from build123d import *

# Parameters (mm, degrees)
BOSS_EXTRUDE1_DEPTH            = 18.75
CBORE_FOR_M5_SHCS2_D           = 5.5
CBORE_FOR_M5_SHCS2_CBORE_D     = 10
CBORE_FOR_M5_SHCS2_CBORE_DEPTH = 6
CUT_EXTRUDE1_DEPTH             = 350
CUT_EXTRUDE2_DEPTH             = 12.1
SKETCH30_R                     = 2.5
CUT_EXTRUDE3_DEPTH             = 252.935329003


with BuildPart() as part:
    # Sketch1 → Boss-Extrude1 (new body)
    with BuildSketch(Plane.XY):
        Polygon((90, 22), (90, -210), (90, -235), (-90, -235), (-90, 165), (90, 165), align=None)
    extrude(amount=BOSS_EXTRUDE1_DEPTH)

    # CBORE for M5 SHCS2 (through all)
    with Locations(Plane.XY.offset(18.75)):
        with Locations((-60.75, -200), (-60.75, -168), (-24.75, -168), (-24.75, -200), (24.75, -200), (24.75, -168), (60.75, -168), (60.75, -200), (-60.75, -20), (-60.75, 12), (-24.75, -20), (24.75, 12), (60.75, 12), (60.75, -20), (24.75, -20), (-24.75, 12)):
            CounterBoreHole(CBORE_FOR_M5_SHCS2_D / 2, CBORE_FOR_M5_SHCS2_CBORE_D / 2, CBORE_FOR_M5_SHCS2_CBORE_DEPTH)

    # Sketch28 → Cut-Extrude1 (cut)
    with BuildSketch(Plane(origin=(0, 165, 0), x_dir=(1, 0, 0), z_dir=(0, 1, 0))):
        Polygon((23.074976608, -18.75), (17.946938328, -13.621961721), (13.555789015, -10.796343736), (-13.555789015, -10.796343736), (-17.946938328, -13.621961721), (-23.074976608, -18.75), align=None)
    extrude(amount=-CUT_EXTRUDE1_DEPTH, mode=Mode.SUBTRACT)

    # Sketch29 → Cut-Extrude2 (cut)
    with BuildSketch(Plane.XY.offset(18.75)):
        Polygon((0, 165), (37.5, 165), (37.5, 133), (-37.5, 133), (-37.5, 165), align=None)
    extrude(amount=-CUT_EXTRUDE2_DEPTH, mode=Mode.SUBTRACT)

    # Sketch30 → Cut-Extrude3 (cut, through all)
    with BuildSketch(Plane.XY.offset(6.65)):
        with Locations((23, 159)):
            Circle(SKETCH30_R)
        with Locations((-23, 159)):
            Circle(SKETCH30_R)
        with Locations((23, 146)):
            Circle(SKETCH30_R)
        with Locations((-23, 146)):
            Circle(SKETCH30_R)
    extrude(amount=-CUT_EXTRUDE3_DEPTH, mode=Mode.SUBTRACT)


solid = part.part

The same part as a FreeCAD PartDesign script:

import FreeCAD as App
import Part
import Sketcher

V = App.Vector


def add_polygon(sketch, points):
    """Adds a closed chain of lines whose ends are joined by coincident constraints."""
    first, n = sketch.GeometryCount, len(points)
    for a, b in zip(points, points[1:] + points[:1]):
        sketch.addGeometry(Part.LineSegment(App.Vector(*a, 0), App.Vector(*b, 0)), False)
    for i in range(n):
        sketch.addConstraint(Sketcher.Constraint("Coincident", first + i, 2, first + (i + 1) % n, 1))

doc = App.newDocument("Part")
body = doc.addObject("PartDesign::Body", "Body")

sketch1 = body.newObject("Sketcher::SketchObject", "Sketch")
sketch1.AttachmentSupport = (doc.getObject("XY_Plane"), [""])
sketch1.MapMode = "FlatFace"
add_polygon(sketch1, [(90, -235), (90, 165), (-90, 165), (-90, -235)])
sketch1.addConstraint(Sketcher.Constraint("Vertical", 0))
sketch1.addConstraint(Sketcher.Constraint("Horizontal", 1))
sketch1.addConstraint(Sketcher.Constraint("Vertical", 2))
sketch1.addConstraint(Sketcher.Constraint("Horizontal", 3))
sketch1.addConstraint(Sketcher.Constraint("DistanceX", 1, 2, 1, 1, 180.0))
sketch1.addConstraint(Sketcher.Constraint("DistanceY", 0, 1, 0, 2, 400.0))
sketch1.addConstraint(Sketcher.Constraint("DistanceX", -1, 1, 0, 2, 90.0))
sketch1.addConstraint(Sketcher.Constraint("DistanceY", -1, 1, 0, 2, 165.0))
pad1 = body.newObject("PartDesign::Pad", "Pad")
pad1.Profile = sketch1
pad1.Length = 18.75

sketch2 = body.newObject("Sketcher::SketchObject", "Sketch001")
sketch2.AttachmentSupport = (doc.getObject("XY_Plane"), [""])
sketch2.MapMode = "FlatFace"
sketch2.AttachmentOffset = App.Placement(V(0, 0, 18.75), App.Rotation())
sketch2.addGeometry(Part.Circle(V(-60.75, -200, 0), V(0, 0, 1), 2.75), False)
sketch2.addGeometry(Part.Circle(V(-60.75, -168, 0), V(0, 0, 1), 2.75), False)
sketch2.addGeometry(Part.Circle(V(-24.75, -168, 0), V(0, 0, 1), 2.75), False)
sketch2.addGeometry(Part.Circle(V(-24.75, -200, 0), V(0, 0, 1), 2.75), False)
sketch2.addGeometry(Part.Circle(V(24.75, -200, 0), V(0, 0, 1), 2.75), False)
sketch2.addGeometry(Part.Circle(V(24.75, -168, 0), V(0, 0, 1), 2.75), False)
sketch2.addGeometry(Part.Circle(V(60.75, -168, 0), V(0, 0, 1), 2.75), False)
sketch2.addGeometry(Part.Circle(V(60.75, -200, 0), V(0, 0, 1), 2.75), False)
sketch2.addGeometry(Part.Circle(V(-60.75, -20, 0), V(0, 0, 1), 2.75), False)
sketch2.addGeometry(Part.Circle(V(-60.75, 12, 0), V(0, 0, 1), 2.75), False)
sketch2.addGeometry(Part.Circle(V(-24.75, -20, 0), V(0, 0, 1), 2.75), False)
sketch2.addGeometry(Part.Circle(V(24.75, 12, 0), V(0, 0, 1), 2.75), False)
sketch2.addGeometry(Part.Circle(V(60.75, 12, 0), V(0, 0, 1), 2.75), False)
sketch2.addGeometry(Part.Circle(V(60.75, -20, 0), V(0, 0, 1), 2.75), False)
sketch2.addGeometry(Part.Circle(V(24.75, -20, 0), V(0, 0, 1), 2.75), False)
sketch2.addGeometry(Part.Circle(V(-24.75, 12, 0), V(0, 0, 1), 2.75), False)
sketch2.addConstraint(Sketcher.Constraint("Equal", 0, 1))
sketch2.addConstraint(Sketcher.Constraint("Equal", 1, 2))
sketch2.addConstraint(Sketcher.Constraint("Equal", 2, 3))
sketch2.addConstraint(Sketcher.Constraint("Equal", 3, 4))
sketch2.addConstraint(Sketcher.Constraint("Equal", 4, 5))
sketch2.addConstraint(Sketcher.Constraint("Equal", 5, 6))
sketch2.addConstraint(Sketcher.Constraint("Equal", 6, 7))
sketch2.addConstraint(Sketcher.Constraint("Equal", 7, 8))
sketch2.addConstraint(Sketcher.Constraint("Equal", 8, 9))
sketch2.addConstraint(Sketcher.Constraint("Equal", 9, 10))
sketch2.addConstraint(Sketcher.Constraint("Equal", 10, 11))
sketch2.addConstraint(Sketcher.Constraint("Equal", 11, 12))
sketch2.addConstraint(Sketcher.Constraint("Equal", 12, 13))
sketch2.addConstraint(Sketcher.Constraint("Equal", 13, 14))
sketch2.addConstraint(Sketcher.Constraint("Equal", 14, 15))
sketch2.addConstraint(Sketcher.Constraint("Symmetric", 3, 3, 4, 3, -2))
sketch2.addConstraint(Sketcher.Constraint("Symmetric", 2, 3, 5, 3, -2))
sketch2.addConstraint(Sketcher.Constraint("Symmetric", 1, 3, 6, 3, -2))
sketch2.addConstraint(Sketcher.Constraint("Symmetric", 0, 3, 7, 3, -2))
sketch2.addConstraint(Sketcher.Constraint("Symmetric", 9, 3, 12, 3, -2))
sketch2.addConstraint(Sketcher.Constraint("Symmetric", 8, 3, 13, 3, -2))
sketch2.addConstraint(Sketcher.Constraint("Symmetric", 10, 3, 14, 3, -2))
sketch2.addConstraint(Sketcher.Constraint("Symmetric", 11, 3, 15, 3, -2))
sketch2.addConstraint(Sketcher.Constraint("Horizontal", 1, 3, 2, 3))
sketch2.addConstraint(Sketcher.Constraint("Horizontal", 0, 3, 3, 3))
sketch2.addConstraint(Sketcher.Constraint("Horizontal", 8, 3, 10, 3))
sketch2.addConstraint(Sketcher.Constraint("Horizontal", 9, 3, 11, 3))
sketch2.addConstraint(Sketcher.Constraint("Vertical", 0, 3, 1, 3))
sketch2.addConstraint(Sketcher.Constraint("Vertical", 2, 3, 3, 3))
sketch2.addConstraint(Sketcher.Constraint("Vertical", 1, 3, 8, 3))
sketch2.addConstraint(Sketcher.Constraint("Vertical", 8, 3, 9, 3))
sketch2.addConstraint(Sketcher.Constraint("Vertical", 3, 3, 10, 3))
sketch2.addConstraint(Sketcher.Constraint("Vertical", 5, 3, 11, 3))
sketch2.addConstraint(Sketcher.Constraint("Diameter", 0, 5.5))
sketch2.addConstraint(Sketcher.Constraint("DistanceY", 0, 3, -1, 1, 200.0))
sketch2.addConstraint(Sketcher.Constraint("DistanceY", 1, 3, -1, 1, 168.0))
sketch2.addConstraint(Sketcher.Constraint("DistanceY", 8, 3, -1, 1, 20.0))
sketch2.addConstraint(Sketcher.Constraint("DistanceY", -1, 1, 9, 3, 12.0))
sketch2.addConstraint(Sketcher.Constraint("DistanceX", 1, 3, 2, 3, 36.0))
sketch2.addConstraint(Sketcher.Constraint("DistanceX", 3, 3, 4, 3, 49.5))
doc.recompute()
hole = body.newObject("PartDesign::Hole", "Hole")
hole.Profile = sketch2
hole.ThreadType = "None"
hole.Diameter = 5.5
hole.DepthType = "ThroughAll"
hole.HoleCutType = "Counterbore"
hole.HoleCutDiameter = 10
hole.HoleCutDepth = 6

sketch3 = body.newObject("Sketcher::SketchObject", "Sketch002")
sketch3.AttachmentSupport = (doc.getObject("XZ_Plane"), [""])
sketch3.MapMode = "FlatFace"
sketch3.AttachmentOffset = App.Placement(V(0, 0, -165), App.Rotation())
add_polygon(sketch3, [(23.074977, 18.75), (17.946938, 13.621962), (13.555789, 10.796344), (-13.555789, 10.796344), (-17.946938, 13.621962), (-23.074977, 18.75)])
sketch3.addConstraint(Sketcher.Constraint("Horizontal", 2))
sketch3.addConstraint(Sketcher.Constraint("Horizontal", 5))
sketch3.addConstraint(Sketcher.Constraint("Symmetric", 0, 2, 3, 2, -2))
sketch3.addConstraint(Sketcher.Constraint("Perpendicular", 0, 4))
sketch3.addConstraint(Sketcher.Constraint("Equal", 1, 3))
sketch3.addConstraint(Sketcher.Constraint("Equal", 0, 4))
sketch3.addConstraint(Sketcher.Constraint("DistanceY", -1, 1, 4, 2, 18.75))
sketch3.addConstraint(Sketcher.Constraint("DistanceX", 2, 2, 2, 1, 27.111578))
sketch3.addConstraint(Sketcher.Constraint("Distance", 0, 7.252141))
sketch3.addConstraint(Sketcher.Constraint("DistanceX", 5, 1, 5, 2, 46.149953))
sketch3.addConstraint(Sketcher.Constraint("Distance", 1, 5.221715))
pocket1 = body.newObject("PartDesign::Pocket", "Pocket")
pocket1.Profile = sketch3
pocket1.Length = 350
pocket1.Reversed = True

sketch4 = body.newObject("Sketcher::SketchObject", "Sketch003")
sketch4.AttachmentSupport = (doc.getObject("XY_Plane"), [""])
sketch4.MapMode = "FlatFace"
sketch4.AttachmentOffset = App.Placement(V(0, 0, 18.75), App.Rotation())
add_polygon(sketch4, [(37.5, 165), (-37.5, 165), (-37.5, 133), (37.5, 133)])
sketch4.addConstraint(Sketcher.Constraint("Horizontal", 0))
sketch4.addConstraint(Sketcher.Constraint("Vertical", 1))
sketch4.addConstraint(Sketcher.Constraint("Horizontal", 2))
sketch4.addConstraint(Sketcher.Constraint("Vertical", 3))
sketch4.addConstraint(Sketcher.Constraint("DistanceX", 0, 2, 0, 1, 75.0))
sketch4.addConstraint(Sketcher.Constraint("DistanceY", 1, 2, 1, 1, 32.0))
sketch4.addConstraint(Sketcher.Constraint("DistanceY", -1, 1, 0, 2, 165.0))
sketch4.addConstraint(Sketcher.Constraint("DistanceX", 0, 2, -1, 1, 37.5))
pocket2 = body.newObject("PartDesign::Pocket", "Pocket001")
pocket2.Profile = sketch4
pocket2.Length = 12.1

sketch5 = body.newObject("Sketcher::SketchObject", "Sketch004")
sketch5.AttachmentSupport = (doc.getObject("XY_Plane"), [""])
sketch5.MapMode = "FlatFace"
sketch5.AttachmentOffset = App.Placement(V(0, 0, 6.65), App.Rotation())
sketch5.addGeometry(Part.Circle(V(23, 159, 0), V(0, 0, 1), 2.5), False)
sketch5.addGeometry(Part.Circle(V(-23, 159, 0), V(0, 0, 1), 2.5), False)
sketch5.addGeometry(Part.Circle(V(23, 146, 0), V(0, 0, 1), 2.5), False)
sketch5.addGeometry(Part.Circle(V(-23, 146, 0), V(0, 0, 1), 2.5), False)
sketch5.addConstraint(Sketcher.Constraint("Equal", 0, 1))
sketch5.addConstraint(Sketcher.Constraint("Equal", 1, 2))
sketch5.addConstraint(Sketcher.Constraint("Equal", 2, 3))
sketch5.addConstraint(Sketcher.Constraint("Symmetric", 0, 3, 1, 3, -2))
sketch5.addConstraint(Sketcher.Constraint("Symmetric", 2, 3, 3, 3, -2))
sketch5.addConstraint(Sketcher.Constraint("Vertical", 0, 3, 2, 3))
sketch5.addConstraint(Sketcher.Constraint("Diameter", 0, 5.0))
sketch5.addConstraint(Sketcher.Constraint("DistanceX", -1, 1, 0, 3, 23.0))
sketch5.addConstraint(Sketcher.Constraint("DistanceY", -1, 1, 0, 3, 159.0))
sketch5.addConstraint(Sketcher.Constraint("DistanceY", -1, 1, 2, 3, 146.0))
pocket3 = body.newObject("PartDesign::Pocket", "Pocket002")
pocket3.Profile = sketch5
pocket3.Type = "ThroughAll"

doc.recompute()
